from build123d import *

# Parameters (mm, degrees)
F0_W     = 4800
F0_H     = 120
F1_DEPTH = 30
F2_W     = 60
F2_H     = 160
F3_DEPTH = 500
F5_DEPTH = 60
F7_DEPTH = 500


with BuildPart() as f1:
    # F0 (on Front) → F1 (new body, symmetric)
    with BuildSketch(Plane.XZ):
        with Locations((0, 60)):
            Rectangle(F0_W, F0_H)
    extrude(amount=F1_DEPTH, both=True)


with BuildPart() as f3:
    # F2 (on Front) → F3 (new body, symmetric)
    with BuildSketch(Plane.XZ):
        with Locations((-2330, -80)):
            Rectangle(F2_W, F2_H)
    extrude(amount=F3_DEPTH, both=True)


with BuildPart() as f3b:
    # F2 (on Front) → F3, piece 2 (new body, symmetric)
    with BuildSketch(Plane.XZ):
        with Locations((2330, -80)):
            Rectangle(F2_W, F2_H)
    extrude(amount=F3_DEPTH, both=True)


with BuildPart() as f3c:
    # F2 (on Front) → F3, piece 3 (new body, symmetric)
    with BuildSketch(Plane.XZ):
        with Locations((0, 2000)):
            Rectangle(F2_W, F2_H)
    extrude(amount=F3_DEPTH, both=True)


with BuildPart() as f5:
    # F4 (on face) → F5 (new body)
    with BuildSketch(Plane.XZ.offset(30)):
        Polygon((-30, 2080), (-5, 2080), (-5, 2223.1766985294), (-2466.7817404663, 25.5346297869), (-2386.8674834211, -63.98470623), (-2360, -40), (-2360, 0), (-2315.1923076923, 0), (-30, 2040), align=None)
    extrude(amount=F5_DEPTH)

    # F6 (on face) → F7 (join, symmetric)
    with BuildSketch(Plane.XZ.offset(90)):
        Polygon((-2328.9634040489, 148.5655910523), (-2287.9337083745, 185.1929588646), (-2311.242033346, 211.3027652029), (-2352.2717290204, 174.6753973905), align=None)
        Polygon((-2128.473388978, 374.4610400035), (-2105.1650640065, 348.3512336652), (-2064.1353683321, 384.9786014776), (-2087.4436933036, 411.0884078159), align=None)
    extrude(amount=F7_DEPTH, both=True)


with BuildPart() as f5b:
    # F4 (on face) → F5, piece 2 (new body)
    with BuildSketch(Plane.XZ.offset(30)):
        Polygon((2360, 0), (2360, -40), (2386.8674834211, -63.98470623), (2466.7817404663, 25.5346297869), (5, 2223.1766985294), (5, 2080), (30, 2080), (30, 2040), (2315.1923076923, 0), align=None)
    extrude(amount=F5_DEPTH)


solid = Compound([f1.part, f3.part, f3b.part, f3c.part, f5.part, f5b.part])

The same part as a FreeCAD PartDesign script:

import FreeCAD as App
import Part
import Sketcher

V = App.Vector


def add_polygon(sketch, points):
    """Adds a closed chain of lines whose ends are joined by coincident constraints."""
    first, n = sketch.GeometryCount, len(points)
    for a, b in zip(points, points[1:] + points[:1]):
        sketch.addGeometry(Part.LineSegment(App.Vector(*a, 0), App.Vector(*b, 0)), False)
    for i in range(n):
        sketch.addConstraint(Sketcher.Constraint("Coincident", first + i, 2, first + (i + 1) % n, 1))

doc = App.newDocument("Part")
body = doc.addObject("PartDesign::Body", "Body")

# Sketch on XZ plane
sketch1 = doc.addObject("Sketcher::SketchObject", "Sketch")
body.addObject(sketch1)
sketch1.AttachmentSupport = (doc.XZ_Plane, [""])
sketch1.MapMode = "FlatFace"
add_polygon(sketch1, [(-2400, 120), (-2400, 0), (2400, 0), (2400, 120)])  # lines 0-3
sketch1.addConstraint([
    Sketcher.Constraint("Vertical", 0),
    Sketcher.Constraint("Horizontal", 1),
    Sketcher.Constraint("Vertical", 2),
    Sketcher.Constraint("Horizontal", 3),
    Sketcher.Constraint("Symmetric", 0, 2, 1, 2, -1, 1),
    Sketcher.Constraint("DistanceX", 1, 1, 1, 2, 4800.0),
    Sketcher.Constraint("DistanceY", 0, 2, 0, 1, 120.0),
])
pad1 = doc.addObject("PartDesign::Pad", "Pad")
body.addObject(pad1)
pad1.Profile = sketch1
pad1.Length = 60
pad1.Midplane = True
body2 = doc.addObject("PartDesign::Body", "Body001")

# Sketch on XZ plane
sketch2 = doc.addObject("Sketcher::SketchObject", "Sketch001")
body2.addObject(sketch2)
sketch2.AttachmentSupport = (doc.getObject("XZ_Plane001"), [""])
sketch2.MapMode = "FlatFace"
add_polygon(sketch2, [(-2360, 0), (-2360, -160), (-2300, -160), (-2300, 0)])  # lines 0-3
sketch2.addConstraint([
    Sketcher.Constraint("Vertical", 0),
    Sketcher.Constraint("Horizontal", 1),
    Sketcher.Constraint("Vertical", 2),
    Sketcher.Constraint("Horizontal", 3),
    Sketcher.Constraint("PointOnObject", 2, 2, -1),
    Sketcher.Constraint("DistanceX", 1, 1, 1, 2, 60.0),
    Sketcher.Constraint("DistanceY", 0, 2, 0, 1, 160.0),
    Sketcher.Constraint("DistanceX", 0, 2, -1, 1, 2360.0),
])
pad2 = doc.addObject("PartDesign::Pad", "Pad001")
body2.addObject(pad2)
pad2.Profile = sketch2
pad2.Length = 1000
pad2.Midplane = True
body3 = doc.addObject("PartDesign::Body", "Body002")

# Sketch on XZ plane
sketch3 = doc.addObject("Sketcher::SketchObject", "Sketch002")
body3.addObject(sketch3)
sketch3.AttachmentSupport = (doc.getObject("XZ_Plane002"), [""])
sketch3.MapMode = "FlatFace"
add_polygon(sketch3, [(2300, 0), (2300, -160), (2360, -160), (2360, 0)])  # lines 0-3
sketch3.addConstraint([
    Sketcher.Constraint("Vertical", 0),
    Sketcher.Constraint("Horizontal", 1),
    Sketcher.Constraint("Vertical", 2),
    Sketcher.Constraint("Horizontal", 3),
    Sketcher.Constraint("PointOnObject", 2, 2, -1),
    Sketcher.Constraint("DistanceX", 1, 1, 1, 2, 60.0),
    Sketcher.Constraint("DistanceY", 0, 2, 0, 1, 160.0),
    Sketcher.Constraint("DistanceX", -1, 1, 0, 2, 2300.0),
])
pad3 = doc.addObject("PartDesign::Pad", "Pad002")
body3.addObject(pad3)
pad3.Profile = sketch3
pad3.Length = 1000
pad3.Midplane = True
body4 = doc.addObject("PartDesign::Body", "Body003")

# Sketch on XZ plane
sketch4 = doc.addObject("Sketcher::SketchObject", "Sketch003")
body4.addObject(sketch4)
sketch4.AttachmentSupport = (doc.getObject("XZ_Plane003"), [""])
sketch4.MapMode = "FlatFace"
add_polygon(sketch4, [(-30, 2080), (-30, 1920), (30, 1920), (30, 2080)])  # lines 0-3
sketch4.addConstraint([
    Sketcher.Constraint("Vertical", 0),
    Sketcher.Constraint("Horizontal", 1),
    Sketcher.Constraint("Vertical", 2),
    Sketcher.Constraint("Horizontal", 3),
    Sketcher.Constraint("DistanceX", 1, 1, 1, 2, 60.0),
    Sketcher.Constraint("DistanceY", 0, 2, 0, 1, 160.0),
    Sketcher.Constraint("DistanceX", 0, 2, -1, 1, 30.0),
    Sketcher.Constraint("DistanceY", -1, 1, 0, 2, 1920.0),
])
pad4 = doc.addObject("PartDesign::Pad", "Pad003")
body4.addObject(pad4)
pad4.Profile = sketch4
pad4.Length = 1000
pad4.Midplane = True
body5 = doc.addObject("PartDesign::Body", "Body004")

# Sketch on XZ plane
sketch5 = doc.addObject("Sketcher::SketchObject", "Sketch004")
body5.addObject(sketch5)
sketch5.AttachmentSupport = (doc.getObject("XZ_Plane004"), [""])
sketch5.MapMode = "FlatFace"
sketch5.AttachmentOffset = App.Placement(V(0, 0, 30), App.Rotation())
add_polygon(sketch5, [(-30, 2080), (-5, 2080), (-5, 2223), (-2467, 26), (-2387, -64), (-2360, -40), (-2360, 0), (-2315, 0), (-30, 2040)])  # lines 0-8
sketch5.addConstraint([
    Sketcher.Constraint("Horizontal", 0),
    Sketcher.Constraint("Vertical", 1),
    Sketcher.Constraint("Vertical", 5),
    Sketcher.Constraint("Horizontal", 6),
    Sketcher.Constraint("Vertical", 8),
    Sketcher.Constraint("PointOnObject", 5, 2, -1),
    Sketcher.Constraint("Perpendicular", 2, 3),
    Sketcher.Constraint("Perpendicular", 3, 4),
    Sketcher.Constraint("Parallel", 4, 7),
    Sketcher.Constraint("Equal", 5, 8),
    Sketcher.Constraint("DistanceX", 0, 1, 0, 2, 25.0),
    Sketcher.Constraint("DistanceY", 5, 1, 5, 2, 40.0),
    Sketcher.Constraint("Distance", 2, 3300.0),
    Sketcher.Constraint("Distance", 3, 120.0),
    Sketcher.Constraint("DistanceX", 0, 2, -1, 1, 5.0),
    Sketcher.Constraint("DistanceY", -1, 1, 0, 2, 2080.0),
    Sketcher.Constraint("DistanceX", 4, 2, -1, 1, 2360.0),
    Sketcher.Constraint("DistanceY", 1, 1, 1, 2, 143.176699),
])
pad5 = doc.addObject("PartDesign::Pad", "Pad004")
body5.addObject(pad5)
pad5.Profile = sketch5
pad5.Length = 60

# Sketch on XZ plane
sketch6 = doc.addObject("Sketcher::SketchObject", "Sketch005")
body5.addObject(sketch6)
sketch6.AttachmentSupport = (doc.getObject("XZ_Plane004"), [""])
sketch6.MapMode = "FlatFace"
sketch6.AttachmentOffset = App.Placement(V(0, 0, 90), App.Rotation())
add_polygon(sketch6, [(-2329, 149), (-2288, 185), (-2311, 211), (-2352, 175)])  # lines 0-3
add_polygon(sketch6, [(-2128, 374), (-2105, 348), (-2064, 385), (-2087, 411)])  # lines 4-7
sketch6.addConstraint([
    Sketcher.Constraint("Perpendicular", 0, 1),
    Sketcher.Constraint("Perpendicular", 1, 2),
    Sketcher.Constraint("Perpendicular", 2, 3),
    Sketcher.Constraint("Parallel", 3, 4),
    Sketcher.Constraint("Perpendicular", 4, 5),
    Sketcher.Constraint("Perpendicular", 5, 6),
    Sketcher.Constraint("Perpendicular", 6, 7),
    Sketcher.Constraint("Equal", 3, 4),
    Sketcher.Constraint("Equal", 2, 5),
    Sketcher.Constraint("Distance", 0, 55.0),
    Sketcher.Constraint("Distance", 1, 35.0),
    Sketcher.Constraint("DistanceY", -1, 1, 5, 2, 384.978601),
    Sketcher.Constraint("DistanceX", 0, 2, -1, 1, 2287.933708),
    Sketcher.Constraint("DistanceY", -1, 1, 0, 2, 185.192959),
    Sketcher.Constraint("DistanceX", 2, 2, -1, 1, 2352.271729),
    Sketcher.Constraint("DistanceX", 5, 2, -1, 1, 2064.135368),
])
pad6 = doc.addObject("PartDesign::Pad", "Pad005")
body5.addObject(pad6)
pad6.Profile = sketch6
pad6.Length = 1000
pad6.Midplane = True
body6 = doc.addObject("PartDesign::Body", "Body005")

# Sketch on XZ plane
sketch7 = doc.addObject("Sketcher::SketchObject", "Sketch006")
body6.addObject(sketch7)
sketch7.AttachmentSupport = (doc.getObject("XZ_Plane005"), [""])
sketch7.MapMode = "FlatFace"
sketch7.AttachmentOffset = App.Placement(V(0, 0, 30), App.Rotation())
add_polygon(sketch7, [(2360, 0), (2360, -40), (2387, -64), (2467, 26), (5, 2223), (5, 2080), (30, 2080), (30, 2040), (2315, 0)])  # lines 0-8
sketch7.addConstraint([
    Sketcher.Constraint("Vertical", 0),
    Sketcher.Constraint("Vertical", 4),
    Sketcher.Constraint("Horizontal", 5),
    Sketcher.Constraint("Vertical", 6),
    Sketcher.Constraint("Horizontal", 8),
    Sketcher.Constraint("PointOnObject", 7, 2, -1),
    Sketcher.Constraint("Perpendicular", 1, 2),
    Sketcher.Constraint("Perpendicular", 2, 3),
    Sketcher.Constraint("Parallel", 3, 7),
    Sketcher.Constraint("Equal", 0, 6),
    Sketcher.Constraint("DistanceX", 5, 1, 5, 2, 25.0),
    Sketcher.Constraint("DistanceY", 0, 2, 0, 1, 40.0),
    Sketcher.Constraint("Distance", 2, 120.0),
    Sketcher.Constraint("Distance", 3, 3300.0),
    Sketcher.Constraint("DistanceX", -1, 1, 0, 2, 2360.0),
    Sketcher.Constraint("DistanceX", -1, 1, 3, 2, 5.0),
    Sketcher.Constraint("DistanceY", -1, 1, 4, 2, 2080.0),
    Sketcher.Constraint("DistanceY", 4, 2, 4, 1, 143.176699),
])
pad7 = doc.addObject("PartDesign::Pad", "Pad006")
body6.addObject(pad7)
pad7.Profile = sketch7
pad7.Length = 60

doc.recompute()
